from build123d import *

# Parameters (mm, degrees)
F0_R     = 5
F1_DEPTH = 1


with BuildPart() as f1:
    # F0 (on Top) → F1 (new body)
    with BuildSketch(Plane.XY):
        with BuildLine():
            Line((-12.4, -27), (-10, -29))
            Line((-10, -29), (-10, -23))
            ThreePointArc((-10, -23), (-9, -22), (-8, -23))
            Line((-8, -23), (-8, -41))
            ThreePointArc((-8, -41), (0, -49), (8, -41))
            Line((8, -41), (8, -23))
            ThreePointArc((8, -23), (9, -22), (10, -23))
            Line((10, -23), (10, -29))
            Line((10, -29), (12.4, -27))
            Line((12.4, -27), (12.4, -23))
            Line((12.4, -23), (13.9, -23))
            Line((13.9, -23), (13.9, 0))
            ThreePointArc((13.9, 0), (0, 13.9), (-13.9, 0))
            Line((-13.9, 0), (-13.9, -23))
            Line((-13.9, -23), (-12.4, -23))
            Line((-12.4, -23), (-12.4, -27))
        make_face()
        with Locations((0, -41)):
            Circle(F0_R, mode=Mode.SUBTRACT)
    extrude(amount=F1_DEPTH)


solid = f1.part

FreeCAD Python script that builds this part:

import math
import FreeCAD as App
import Part
import Sketcher
from FreeCAD import Vector
Q = App.Units.Quantity

doc = App.newDocument("Part")
body = doc.addObject("PartDesign::Body", "Body")

sketch1 = body.newObject("Sketcher::SketchObject", "Sketch")
sketch1.AttachmentSupport = (doc.getObject("XY_Plane"), [""])
sketch1.MapMode = "FlatFace"
sketch1.addGeometry(Part.LineSegment(Vector(-12.4, -27, 0), Vector(-10, -29, 0)), False)
sketch1.addGeometry(Part.LineSegment(Vector(-10, -29, 0), Vector(-10, -23, 0)), False)
sketch1.addGeometry(Part.ArcOfCircle(Part.Circle(Vector(-9, -23, 0), Vector(0, 0, 1), 1), math.radians(0), math.radians(180)), False)
sketch1.addGeometry(Part.LineSegment(Vector(-8, -23, 0), Vector(-8, -41, 0)), False)
sketch1.addGeometry(Part.ArcOfCircle(Part.Circle(Vector(0, -41, 0), Vector(0, 0, 1), 8), math.radians(180), math.radians(360)), False)
sketch1.addGeometry(Part.LineSegment(Vector(8, -41, 0), Vector(8, -23, 0)), False)
sketch1.addGeometry(Part.ArcOfCircle(Part.Circle(Vector(9, -23, 0), Vector(0, 0, 1), 1), math.radians(0), math.radians(180)), False)
sketch1.addGeometry(Part.LineSegment(Vector(10, -23, 0), Vector(10, -29, 0)), False)
sketch1.addGeometry(Part.LineSegment(Vector(10, -29, 0), Vector(12.4, -27, 0)), False)
sketch1.addGeometry(Part.LineSegment(Vector(12.4, -27, 0), Vector(12.4, -23, 0)), False)
sketch1.addGeometry(Part.LineSegment(Vector(12.4, -23, 0), Vector(13.9, -23, 0)), False)
sketch1.addGeometry(Part.LineSegment(Vector(13.9, -23, 0), Vector(13.9, 0, 0)), False)
sketch1.addGeometry(Part.ArcOfCircle(Part.Circle(Vector(0, 0, 0), Vector(0, 0, 1), 13.9), math.radians(0), math.radians(180)), False)
sketch1.addGeometry(Part.LineSegment(Vector(-13.9, 0, 0), Vector(-13.9, -23, 0)), False)
sketch1.addGeometry(Part.LineSegment(Vector(-13.9, -23, 0), Vector(-12.4, -23, 0)), False)
sketch1.addGeometry(Part.LineSegment(Vector(-12.4, -23, 0), Vector(-12.4, -27, 0)), False)
sketch1.addGeometry(Part.Circle(Vector(0, -41, 0), Vector(0, 0, 1), 5), False)
sketch1.addConstraint(Sketcher.Constraint("Coincident", 0, 2, 1, 1))
sketch1.addConstraint(Sketcher.Constraint("Tangent", 1, 2, 2, 2))
sketch1.addConstraint(Sketcher.Constraint("Tangent", 2, 1, 3, 1))
sketch1.addConstraint(Sketcher.Constraint("Tangent", 3, 2, 4, 1))
sketch1.addConstraint(Sketcher.Constraint("Tangent", 4, 2, 5, 1))
sketch1.addConstraint(Sketcher.Constraint("Tangent", 5, 2, 6, 2))
sketch1.addConstraint(Sketcher.Constraint("Tangent", 6, 1, 7, 1))
sketch1.addConstraint(Sketcher.Constraint("Coincident", 7, 2, 8, 1))
sketch1.addConstraint(Sketcher.Constraint("Coincident", 8, 2, 9, 1))
sketch1.addConstraint(Sketcher.Constraint("Coincident", 9, 2, 10, 1))
sketch1.addConstraint(Sketcher.Constraint("Coincident", 10, 2, 11, 1))
sketch1.addConstraint(Sketcher.Constraint("Tangent", 11, 2, 12, 1))
sketch1.addConstraint(Sketcher.Constraint("Tangent", 12, 2, 13, 1))
sketch1.addConstraint(Sketcher.Constraint("Coincident", 13, 2, 14, 1))
sketch1.addConstraint(Sketcher.Constraint("Coincident", 14, 2, 15, 1))
sketch1.addConstraint(Sketcher.Constraint("Coincident", 15, 2, 0, 1))
sketch1.addConstraint(Sketcher.Constraint("Vertical", 1))
sketch1.addConstraint(Sketcher.Constraint("Vertical", 3))
sketch1.addConstraint(Sketcher.Constraint("Vertical", 5))
sketch1.addConstraint(Sketcher.Constraint("Vertical", 7))
sketch1.addConstraint(Sketcher.Constraint("Vertical", 9))
sketch1.addConstraint(Sketcher.Constraint("Horizontal", 10))
sketch1.addConstraint(Sketcher.Constraint("Vertical", 11))
sketch1.addConstraint(Sketcher.Constraint("Vertical", 13))
sketch1.addConstraint(Sketcher.Constraint("Horizontal", 14))
sketch1.addConstraint(Sketcher.Constraint("Vertical", 15))
sketch1.addConstraint(Sketcher.Constraint("Coincident", 12, 3, -1, 1))
sketch1.addConstraint(Sketcher.Constraint("Coincident", 16, 3, 4, 3))
sketch1.addConstraint(Sketcher.Constraint("Equal", 2, 6))
sketch1.addConstraint(Sketcher.Constraint("Symmetric", 2, 3, 6, 3, -2))
sketch1.addConstraint(Sketcher.Constraint("Symmetric", 9, 2, 14, 2, -2))
sketch1.addConstraint(Sketcher.Constraint("Horizontal", 0, 2, 7, 2))
sketch1.addConstraint(Sketcher.Constraint("Horizontal", 6, 1, 9, 2))
sketch1.addConstraint(Sketcher.Constraint("Horizontal", 8, 2, 15, 2))
sketch1.addConstraint(Sketcher.Constraint("Diameter", 16, Q("10 mm")))
sketch1.addConstraint(Sketcher.Constraint("Radius", 2, Q("1 mm")))
sketch1.addConstraint(Sketcher.Constraint("Radius", 4, Q("8 mm")))
sketch1.addConstraint(Sketcher.Constraint("Radius", 12, Q("13.9 mm")))
sketch1.addConstraint(Sketcher.Constraint("DistanceY", 1, 1, 1, 2, Q("6 mm")))
sketch1.addConstraint(Sketcher.Constraint("DistanceY", 3, 2, 3, 1, Q("18 mm")))
sketch1.addConstraint(Sketcher.Constraint("DistanceY", 9, 1, 9, 2, Q("4 mm")))
sketch1.addConstraint(Sketcher.Constraint("DistanceY", 11, 1, 11, 2, Q("23 mm")))
sketch1.addConstraint(Sketcher.Constraint("DistanceX", 10, 1, 10, 2, Q("1.5 mm")))
pad1 = body.newObject("PartDesign::Pad", "Pad")
pad1.Profile = sketch1
pad1.Length = 1

doc.recompute()
